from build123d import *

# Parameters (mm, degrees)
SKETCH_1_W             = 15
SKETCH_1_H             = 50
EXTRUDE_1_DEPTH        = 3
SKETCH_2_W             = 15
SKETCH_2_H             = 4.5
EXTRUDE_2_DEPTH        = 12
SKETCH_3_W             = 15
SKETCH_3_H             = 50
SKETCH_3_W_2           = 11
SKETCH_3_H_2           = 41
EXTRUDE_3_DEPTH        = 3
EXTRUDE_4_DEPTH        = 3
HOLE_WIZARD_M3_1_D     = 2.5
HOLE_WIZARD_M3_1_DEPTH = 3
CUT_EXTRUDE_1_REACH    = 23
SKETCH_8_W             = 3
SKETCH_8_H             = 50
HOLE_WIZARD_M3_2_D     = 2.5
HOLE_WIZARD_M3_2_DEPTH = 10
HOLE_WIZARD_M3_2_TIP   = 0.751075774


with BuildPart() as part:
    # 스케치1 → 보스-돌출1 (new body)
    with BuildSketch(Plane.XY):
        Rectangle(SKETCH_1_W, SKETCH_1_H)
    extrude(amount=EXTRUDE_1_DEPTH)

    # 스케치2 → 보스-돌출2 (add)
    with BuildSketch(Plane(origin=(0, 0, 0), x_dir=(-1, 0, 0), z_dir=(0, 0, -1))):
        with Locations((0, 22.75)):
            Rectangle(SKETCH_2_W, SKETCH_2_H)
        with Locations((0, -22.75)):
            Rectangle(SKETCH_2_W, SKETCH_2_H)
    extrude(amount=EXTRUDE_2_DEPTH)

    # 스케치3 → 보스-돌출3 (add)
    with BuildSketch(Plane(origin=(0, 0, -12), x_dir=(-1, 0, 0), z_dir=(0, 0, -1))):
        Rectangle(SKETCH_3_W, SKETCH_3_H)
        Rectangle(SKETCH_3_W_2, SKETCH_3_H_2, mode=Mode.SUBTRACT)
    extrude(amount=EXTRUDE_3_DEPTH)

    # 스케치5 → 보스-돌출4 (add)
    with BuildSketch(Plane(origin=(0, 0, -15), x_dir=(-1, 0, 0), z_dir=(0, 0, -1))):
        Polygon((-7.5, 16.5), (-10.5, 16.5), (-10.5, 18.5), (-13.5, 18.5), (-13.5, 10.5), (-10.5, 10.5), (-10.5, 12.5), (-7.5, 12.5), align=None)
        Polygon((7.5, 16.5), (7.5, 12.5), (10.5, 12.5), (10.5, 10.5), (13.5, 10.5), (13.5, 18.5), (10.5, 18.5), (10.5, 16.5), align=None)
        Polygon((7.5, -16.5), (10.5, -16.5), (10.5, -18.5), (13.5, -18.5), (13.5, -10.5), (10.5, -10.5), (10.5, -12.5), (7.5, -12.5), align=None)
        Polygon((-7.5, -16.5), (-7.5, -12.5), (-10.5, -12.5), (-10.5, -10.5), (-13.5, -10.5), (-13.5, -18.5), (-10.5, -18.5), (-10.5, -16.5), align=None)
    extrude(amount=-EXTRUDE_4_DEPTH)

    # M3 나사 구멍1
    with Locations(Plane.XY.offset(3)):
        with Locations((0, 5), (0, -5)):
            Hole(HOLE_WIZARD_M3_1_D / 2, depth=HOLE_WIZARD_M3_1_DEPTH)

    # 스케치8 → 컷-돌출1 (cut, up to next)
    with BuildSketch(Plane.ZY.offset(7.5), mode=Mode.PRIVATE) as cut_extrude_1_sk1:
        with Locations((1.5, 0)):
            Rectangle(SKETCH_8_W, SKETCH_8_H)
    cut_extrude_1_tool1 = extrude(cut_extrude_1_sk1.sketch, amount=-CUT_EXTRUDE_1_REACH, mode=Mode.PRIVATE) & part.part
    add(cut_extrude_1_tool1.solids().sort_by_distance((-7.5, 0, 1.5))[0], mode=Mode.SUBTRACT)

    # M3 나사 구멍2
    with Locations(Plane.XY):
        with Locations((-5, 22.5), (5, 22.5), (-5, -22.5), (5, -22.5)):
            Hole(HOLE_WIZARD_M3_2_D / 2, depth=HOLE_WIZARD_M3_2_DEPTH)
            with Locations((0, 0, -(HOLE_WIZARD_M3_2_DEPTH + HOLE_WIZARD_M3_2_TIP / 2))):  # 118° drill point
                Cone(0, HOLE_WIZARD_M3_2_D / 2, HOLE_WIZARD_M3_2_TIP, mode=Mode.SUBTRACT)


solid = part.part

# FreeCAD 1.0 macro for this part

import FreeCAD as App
import Part
import Sketcher

V = App.Vector
Q = App.Units.Quantity

doc = App.newDocument("Part")
body = doc.addObject("PartDesign::Body", "Body")

# Sketch on XY plane
sketch1 = body.newObject("Sketcher::SketchObject", "Sketch")
sketch1.AttachmentSupport = (doc.getObject("XY_Plane"), [""])
sketch1.MapMode = "FlatFace"
sketch1.addGeometry([
    Part.LineSegment(V(-8, 25, 0), V(-8, -25, 0)),
    Part.LineSegment(V(-8, -25, 0), V(8, -25, 0)),
    Part.LineSegment(V(8, -25, 0), V(8, 25, 0)),
    Part.LineSegment(V(8, 25, 0), V(-8, 25, 0)),
], False)
sketch1.addConstraint([
    Sketcher.Constraint("Coincident", 0, 2, 1, 1),
    Sketcher.Constraint("Coincident", 1, 2, 2, 1),
    Sketcher.Constraint("Coincident", 2, 2, 3, 1),
    Sketcher.Constraint("Coincident", 3, 2, 0, 1),
    Sketcher.Constraint("Vertical", 0),
    Sketcher.Constraint("Horizontal", 1),
    Sketcher.Constraint("Vertical", 2),
    Sketcher.Constraint("Horizontal", 3),
    Sketcher.Constraint("Symmetric", 0, 2, 2, 2, -1, 1),
    Sketcher.Constraint("DistanceX", 1, 1, 1, 2, Q("15 mm")),
    Sketcher.Constraint("DistanceY", 0, 2, 0, 1, Q("50 mm")),
])
pad1 = body.newObject("PartDesign::Pad", "Pad")
pad1.Profile = sketch1
pad1.Length = 3

# Sketch on XY plane
sketch2 = body.newObject("Sketcher::SketchObject", "Sketch001")
sketch2.AttachmentSupport = (doc.getObject("XY_Plane"), [""])
sketch2.MapMode = "FlatFace"
sketch2.addGeometry([
    Part.LineSegment(V(7.5, 25, 0), V(7.5, 20.5, 0)),  # 0
    Part.LineSegment(V(7.5, 20.5, 0), V(-7.5, 20.5, 0)),  # 1
    Part.LineSegment(V(-7.5, 20.5, 0), V(-7.5, 25, 0)),  # 2
    Part.LineSegment(V(-7.5, 25, 0), V(7.5, 25, 0)),  # 3
    Part.LineSegment(V(7.5, -20.5, 0), V(7.5, -25, 0)),  # 4
    Part.LineSegment(V(7.5, -25, 0), V(-7.5, -25, 0)),  # 5
    Part.LineSegment(V(-7.5, -25, 0), V(-7.5, -20.5, 0)),  # 6
    Part.LineSegment(V(-7.5, -20.5, 0), V(7.5, -20.5, 0)),  # 7
], False)
sketch2.addConstraint([
    Sketcher.Constraint("Coincident", 0, 2, 1, 1),
    Sketcher.Constraint("Coincident", 1, 2, 2, 1),
    Sketcher.Constraint("Coincident", 2, 2, 3, 1),
    Sketcher.Constraint("Coincident", 3, 2, 0, 1),
    Sketcher.Constraint("Coincident", 4, 2, 5, 1),
    Sketcher.Constraint("Coincident", 5, 2, 6, 1),
    Sketcher.Constraint("Coincident", 6, 2, 7, 1),
    Sketcher.Constraint("Coincident", 7, 2, 4, 1),
    Sketcher.Constraint("Vertical", 0),
    Sketcher.Constraint("Horizontal", 1),
    Sketcher.Constraint("Vertical", 2),
    Sketcher.Constraint("Horizontal", 3),
    Sketcher.Constraint("Vertical", 4),
    Sketcher.Constraint("Horizontal", 5),
    Sketcher.Constraint("Vertical", 6),
    Sketcher.Constraint("Horizontal", 7),
    Sketcher.Constraint("Symmetric", 2, 2, 4, 2, -1, 1),
    Sketcher.Constraint("Symmetric", 0, 2, 6, 2, -1, 1),
    Sketcher.Constraint("Vertical", 3, 2, 4, 2),
    Sketcher.Constraint("DistanceX", 1, 2, 1, 1, Q("15 mm")),
    Sketcher.Constraint("DistanceY", 0, 2, 0, 1, Q("4.5 mm")),
    Sketcher.Constraint("DistanceY", -1, 1, 2, 2, Q("25 mm")),
])
pad2 = body.newObject("PartDesign::Pad", "Pad001")
pad2.Profile = sketch2
pad2.Length = 12
pad2.Reversed = True

# Sketch on XY plane
sketch3 = body.newObject("Sketcher::SketchObject", "Sketch002")
sketch3.AttachmentSupport = (doc.getObject("XY_Plane"), [""])
sketch3.MapMode = "FlatFace"
sketch3.AttachmentOffset = App.Placement(V(0, 0, -12), App.Rotation())
sketch3.addGeometry([
    Part.LineSegment(V(8, 25, 0), V(8, -25, 0)),  # 0
    Part.LineSegment(V(8, -25, 0), V(-8, -25, 0)),  # 1
    Part.LineSegment(V(-8, -25, 0), V(-8, 25, 0)),  # 2
    Part.LineSegment(V(-8, 25, 0), V(8, 25, 0)),  # 3
    Part.LineSegment(V(-6, -20, 0), V(6, -20, 0)),  # 4
    Part.LineSegment(V(6, -20, 0), V(6, 20, 0)),  # 5
    Part.LineSegment(V(6, 20, 0), V(-6, 20, 0)),  # 6
    Part.LineSegment(V(-6, 20, 0), V(-6, -20, 0)),  # 7
], False)
sketch3.addConstraint([
    Sketcher.Constraint("Coincident", 0, 2, 1, 1),
    Sketcher.Constraint("Coincident", 1, 2, 2, 1),
    Sketcher.Constraint("Coincident", 2, 2, 3, 1),
    Sketcher.Constraint("Coincident", 3, 2, 0, 1),
    Sketcher.Constraint("Coincident", 4, 2, 5, 1),
    Sketcher.Constraint("Coincident", 5, 2, 6, 1),
    Sketcher.Constraint("Coincident", 6, 2, 7, 1),
    Sketcher.Constraint("Coincident", 7, 2, 4, 1),
    Sketcher.Constraint("Vertical", 0),
    Sketcher.Constraint("Horizontal", 1),
    Sketcher.Constraint("Vertical", 2),
    Sketcher.Constraint("Horizontal", 3),
    Sketcher.Constraint("Horizontal", 4),
    Sketcher.Constraint("Vertical", 5),
    Sketcher.Constraint("Horizontal", 6),
    Sketcher.Constraint("Vertical", 7),
    Sketcher.Constraint("Symmetric", 0, 2, 2, 2, -1, 1),
    Sketcher.Constraint("Symmetric", 4, 2, 6, 2, -1, 1),
    Sketcher.Constraint("DistanceX", 1, 2, 1, 1, Q("15 mm")),
    Sketcher.Constraint("DistanceX", 4, 1, 4, 2, Q("11 mm")),
    Sketcher.Constraint("DistanceY", 0, 2, 0, 1, Q("50 mm")),
    Sketcher.Constraint("DistanceY", 5, 1, 5, 2, Q("41 mm")),
])
pad3 = body.newObject("PartDesign::Pad", "Pad002")
pad3.Profile = sketch3
pad3.Length = 3
pad3.Reversed = True

# Sketch on XY plane
sketch4 = body.newObject("Sketcher::SketchObject", "Sketch003")
sketch4.AttachmentSupport = (doc.getObject("XY_Plane"), [""])
sketch4.MapMode = "FlatFace"
sketch4.AttachmentOffset = App.Placement(V(0, 0, -15), App.Rotation())
sketch4.addGeometry([
    Part.LineSegment(V(7.5, 16.5, 0), V(10.5, 16.5, 0)),  # 0
    Part.LineSegment(V(10.5, 16.5, 0), V(10.5, 18.5, 0)),  # 1
    Part.LineSegment(V(10.5, 18.5, 0), V(13.5, 18.5, 0)),  # 2
    Part.LineSegment(V(13.5, 18.5, 0), V(13.5, 10.5, 0)),  # 3
    Part.LineSegment(V(13.5, 10.5, 0), V(10.5, 10.5, 0)),  # 4
    Part.LineSegment(V(10.5, 10.5, 0), V(10.5, 12.5, 0)),  # 5
    Part.LineSegment(V(10.5, 12.5, 0), V(7.5, 12.5, 0)),  # 6
    Part.LineSegment(V(7.5, 12.5, 0), V(7.5, 16.5, 0)),  # 7
    Part.LineSegment(V(-7.5, 16.5, 0), V(-7.5, 12.5, 0)),  # 8
    Part.LineSegment(V(-7.5, 12.5, 0), V(-10.5, 12.5, 0)),  # 9
    Part.LineSegment(V(-10.5, 12.5, 0), V(-10.5, 10.5, 0)),  # 10
    Part.LineSegment(V(-10.5, 10.5, 0), V(-13.5, 10.5, 0)),  # 11
    Part.LineSegment(V(-13.5, 10.5, 0), V(-13.5, 18.5, 0)),  # 12
    Part.LineSegment(V(-13.5, 18.5, 0), V(-10.5, 18.5, 0)),  # 13
    Part.LineSegment(V(-10.5, 18.5, 0), V(-10.5, 16.5, 0)),  # 14
    Part.LineSegment(V(-10.5, 16.5, 0), V(-7.5, 16.5, 0)),  # 15
    Part.LineSegment(V(-7.5, -16.5, 0), V(-10.5, -16.5, 0)),  # 16
    Part.LineSegment(V(-10.5, -16.5, 0), V(-10.5, -18.5, 0)),  # 17
    Part.LineSegment(V(-10.5, -18.5, 0), V(-13.5, -18.5, 0)),  # 18
    Part.LineSegment(V(-13.5, -18.5, 0), V(-13.5, -10.5, 0)),  # 19
    Part.LineSegment(V(-13.5, -10.5, 0), V(-10.5, -10.5, 0)),  # 20
    Part.LineSegment(V(-10.5, -10.5, 0), V(-10.5, -12.5, 0)),  # 21
    Part.LineSegment(V(-10.5, -12.5, 0), V(-7.5, -12.5, 0)),  # 22
    Part.LineSegment(V(-7.5, -12.5, 0), V(-7.5, -16.5, 0)),  # 23
    Part.LineSegment(V(7.5, -16.5, 0), V(7.5, -12.5, 0)),  # 24
    Part.LineSegment(V(7.5, -12.5, 0), V(10.5, -12.5, 0)),  # 25
    Part.LineSegment(V(10.5, -12.5, 0), V(10.5, -10.5, 0)),  # 26
    Part.LineSegment(V(10.5, -10.5, 0), V(13.5, -10.5, 0)),  # 27
    Part.LineSegment(V(13.5, -10.5, 0), V(13.5, -18.5, 0)),  # 28
    Part.LineSegment(V(13.5, -18.5, 0), V(10.5, -18.5, 0)),  # 29
    Part.LineSegment(V(10.5, -18.5, 0), V(10.5, -16.5, 0)),  # 30
    Part.LineSegment(V(10.5, -16.5, 0), V(7.5, -16.5, 0)),  # 31
], False)
sketch4.addConstraint([
    Sketcher.Constraint("Coincident", 0, 2, 1, 1),
    Sketcher.Constraint("Coincident", 1, 2, 2, 1),
    Sketcher.Constraint("Coincident", 2, 2, 3, 1),
    Sketcher.Constraint("Coincident", 3, 2, 4, 1),
    Sketcher.Constraint("Coincident", 4, 2, 5, 1),
    Sketcher.Constraint("Coincident", 5, 2, 6, 1),
    Sketcher.Constraint("Coincident", 6, 2, 7, 1),
    Sketcher.Constraint("Coincident", 7, 2, 0, 1),
    Sketcher.Constraint("Coincident", 8, 2, 9, 1),
    Sketcher.Constraint("Coincident", 9, 2, 10, 1),
    Sketcher.Constraint("Coincident", 10, 2, 11, 1),
    Sketcher.Constraint("Coincident", 11, 2, 12, 1),
    Sketcher.Constraint("Coincident", 12, 2, 13, 1),
    Sketcher.Constraint("Coincident", 13, 2, 14, 1),
    Sketcher.Constraint("Coincident", 14, 2, 15, 1),
    Sketcher.Constraint("Coincident", 15, 2, 8, 1),
    Sketcher.Constraint("Coincident", 16, 2, 17, 1),
    Sketcher.Constraint("Coincident", 17, 2, 18, 1),
    Sketcher.Constraint("Coincident", 18, 2, 19, 1),
    Sketcher.Constraint("Coincident", 19, 2, 20, 1),
    Sketcher.Constraint("Coincident", 20, 2, 21, 1),
    Sketcher.Constraint("Coincident", 21, 2, 22, 1),
    Sketcher.Constraint("Coincident", 22, 2, 23, 1),
    Sketcher.Constraint("Coincident", 23, 2, 16, 1),
    Sketcher.Constraint("Coincident", 24, 2, 25, 1),
    Sketcher.Constraint("Coincident", 25, 2, 26, 1),
    Sketcher.Constraint("Coincident", 26, 2, 27, 1),
    Sketcher.Constraint("Coincident", 27, 2, 28, 1),
    Sketcher.Constraint("Coincident", 28, 2, 29, 1),
    Sketcher.Constraint("Coincident", 29, 2, 30, 1),
    Sketcher.Constraint("Coincident", 30, 2, 31, 1),
    Sketcher.Constraint("Coincident", 31, 2, 24, 1),
    Sketcher.Constraint("Horizontal", 0),
    Sketcher.Constraint("Vertical", 1),
    Sketcher.Constraint("Horizontal", 2),
    Sketcher.Constraint("Vertical", 3),
    Sketcher.Constraint("Horizontal", 4),
    Sketcher.Constraint("Vertical", 5),
    Sketcher.Constraint("Horizontal", 6),
    Sketcher.Constraint("Vertical", 7),
    Sketcher.Constraint("Vertical", 8),
    Sketcher.Constraint("Horizontal", 9),
    Sketcher.Constraint("Vertical", 10),
    Sketcher.Constraint("Horizontal", 11),
    Sketcher.Constraint("Vertical", 12),
    Sketcher.Constraint("Horizontal", 13),
    Sketcher.Constraint("Vertical", 14),
    Sketcher.Constraint("Horizontal", 15),
    Sketcher.Constraint("Horizontal", 16),
    Sketcher.Constraint("Vertical", 17),
    Sketcher.Constraint("Horizontal", 18),
    Sketcher.Constraint("Vertical", 19),
    Sketcher.Constraint("Horizontal", 20),
    Sketcher.Constraint("Vertical", 21),
    Sketcher.Constraint("Horizontal", 22),
    Sketcher.Constraint("Vertical", 23),
    Sketcher.Constraint("Vertical", 24),
    Sketcher.Constraint("Horizontal", 25),
    Sketcher.Constraint("Vertical", 26),
    Sketcher.Constraint("Horizontal", 27),
    Sketcher.Constraint("Vertical", 28),
    Sketcher.Constraint("Horizontal", 29),
    Sketcher.Constraint("Vertical", 30),
    Sketcher.Constraint("Horizontal", 31),
    Sketcher.Constraint("Symmetric", 0, 2, 16, 2, -1, 1),
    Sketcher.Constraint("Symmetric", 2, 2, 18, 2, -1, 1),
    Sketcher.Constraint("Symmetric", 4, 2, 20, 2, -1, 1),
    Sketcher.Constraint("Symmetric", 6, 2, 22, 2, -1, 1),
    Sketcher.Constraint("Symmetric", 8, 2, 24, 2, -1, 1),
    Sketcher.Constraint("Symmetric", 10, 2, 26, 2, -1, 1),
    Sketcher.Constraint("Symmetric", 12, 2, 28, 2, -1, 1),
    Sketcher.Constraint("Symmetric", 14, 2, 30, 2, -1, 1),
    Sketcher.Constraint("Symmetric", 6, 2, 8, 2, -2),
    Sketcher.Constraint("Symmetric", 4, 2, 10, 2, -2),
    Sketcher.Constraint("Symmetric", 2, 2, 12, 2, -2),
    Sketcher.Constraint("Symmetric", 0, 2, 14, 2, -2),
    Sketcher.Constraint("Vertical", 1, 2, 4, 2),
    Sketcher.Constraint("Equal", 0, 2),
    Sketcher.Constraint("Equal", 1, 5),
    Sketcher.Constraint("DistanceX", 0, 1, 0, 2, Q("3 mm")),
    Sketcher.Constraint("DistanceY", 1, 1, 1, 2, Q("2 mm")),
    Sketcher.Constraint("DistanceY", 3, 2, 3, 1, Q("8 mm")),
    Sketcher.Constraint("DistanceX", 8, 2, 6, 2, Q("15 mm")),
    Sketcher.Constraint("DistanceY", 16, 2, 10, 2, Q("27 mm")),
])
pad4 = body.newObject("PartDesign::Pad", "Pad003")
pad4.Profile = sketch4
pad4.Length = 3

# Sketch on XY plane
sketch5 = body.newObject("Sketcher::SketchObject", "Sketch004")
sketch5.AttachmentSupport = (doc.getObject("XY_Plane"), [""])
sketch5.MapMode = "FlatFace"
sketch5.AttachmentOffset = App.Placement(V(0, 0, 3), App.Rotation())
sketch5.addGeometry([
    Part.Circle(V(0, 5, 0), V(0, 0, 1), 1.2),
    Part.Circle(V(0, -5, 0), V(0, 0, 1), 1.2),
], False)
sketch5.addConstraint([
    Sketcher.Constraint("Equal", 0, 1),
    Sketcher.Constraint("Symmetric", 0, 3, 1, 3, -1, 1),
    Sketcher.Constraint("PointOnObject", 0, 3, -2),
    Sketcher.Constraint("Diameter", 0, Q("2.5 mm")),
    Sketcher.Constraint("DistanceY", -1, 1, 0, 3, Q("5 mm")),
])
doc.recompute()
hole = body.newObject("PartDesign::Hole", "Hole")
hole.Profile = sketch5
hole.ThreadType = "None"
hole.Diameter = 2.5
hole.DepthType = "Dimension"
hole.Depth = 3
hole.DrillPoint = "Flat"

# Sketch on YZ plane
sketch6 = body.newObject("Sketcher::SketchObject", "Sketch005")
sketch6.AttachmentSupport = (doc.getObject("YZ_Plane"), [""])
sketch6.MapMode = "FlatFace"
sketch6.AttachmentOffset = App.Placement(V(0, 0, -7.5), App.Rotation())
sketch6.addGeometry([
    Part.LineSegment(V(25, 0, 0), V(-25, 0, 0)),
    Part.LineSegment(V(-25, 0, 0), V(-25, 3, 0)),
    Part.LineSegment(V(-25, 3, 0), V(25, 3, 0)),
    Part.LineSegment(V(25, 3, 0), V(25, 0, 0)),
], False)
sketch6.addConstraint([
    Sketcher.Constraint("Coincident", 0, 2, 1, 1),
    Sketcher.Constraint("Coincident", 1, 2, 2, 1),
    Sketcher.Constraint("Coincident", 2, 2, 3, 1),
    Sketcher.Constraint("Coincident", 3, 2, 0, 1),
    Sketcher.Constraint("Horizontal", 0),
    Sketcher.Constraint("Vertical", 1),
    Sketcher.Constraint("Horizontal", 2),
    Sketcher.Constraint("Vertical", 3),
    Sketcher.Constraint("Symmetric", 0, 2, 3, 2, -1, 1),
    Sketcher.Constraint("DistanceX", 0, 2, 0, 1, Q("50 mm")),
    Sketcher.Constraint("DistanceY", 1, 1, 1, 2, Q("3 mm")),
])
pocket1 = body.newObject("PartDesign::Pocket", "Pocket")
pocket1.Profile = sketch6
pocket1.Type = "UpToFirst"
pocket1.Reversed = True

# Sketch on XY plane
sketch7 = body.newObject("Sketcher::SketchObject", "Sketch006")
sketch7.AttachmentSupport = (doc.getObject("XY_Plane"), [""])
sketch7.MapMode = "FlatFace"
sketch7.addGeometry([
    Part.Circle(V(-5, 22.5, 0), V(0, 0, 1), 1.2),
    Part.Circle(V(5, 22.5, 0), V(0, 0, 1), 1.2),
    Part.Circle(V(-5, -22.5, 0), V(0, 0, 1), 1.2),
    Part.Circle(V(5, -22.5, 0), V(0, 0, 1), 1.2),
], False)
sketch7.addConstraint([
    Sketcher.Constraint("Equal", 0, 1),
    Sketcher.Constraint("Equal", 1, 2),
    Sketcher.Constraint("Equal", 2, 3),
    Sketcher.Constraint("Symmetric", 1, 3, 2, 3, -1, 1),
    Sketcher.Constraint("Symmetric", 0, 3, 3, 3, -1, 1),
    Sketcher.Constraint("Symmetric", 0, 3, 1, 3, -2),
    Sketcher.Constraint("Diameter", 0, Q("2.5 mm")),
    Sketcher.Constraint("DistanceX", 0, 3, -1, 1, Q("5 mm")),
    Sketcher.Constraint("DistanceY", 2, 3, 0, 3, Q("45 mm")),
])
doc.recompute()
hole2 = body.newObject("PartDesign::Hole", "Hole001")
hole2.Profile = sketch7
hole2.ThreadType = "None"
hole2.Diameter = 2.5
hole2.DepthType = "Dimension"
hole2.Depth = 10
hole2.DrillPoint = "Angled"
hole2.DrillPointAngle = 118

doc.recompute()
